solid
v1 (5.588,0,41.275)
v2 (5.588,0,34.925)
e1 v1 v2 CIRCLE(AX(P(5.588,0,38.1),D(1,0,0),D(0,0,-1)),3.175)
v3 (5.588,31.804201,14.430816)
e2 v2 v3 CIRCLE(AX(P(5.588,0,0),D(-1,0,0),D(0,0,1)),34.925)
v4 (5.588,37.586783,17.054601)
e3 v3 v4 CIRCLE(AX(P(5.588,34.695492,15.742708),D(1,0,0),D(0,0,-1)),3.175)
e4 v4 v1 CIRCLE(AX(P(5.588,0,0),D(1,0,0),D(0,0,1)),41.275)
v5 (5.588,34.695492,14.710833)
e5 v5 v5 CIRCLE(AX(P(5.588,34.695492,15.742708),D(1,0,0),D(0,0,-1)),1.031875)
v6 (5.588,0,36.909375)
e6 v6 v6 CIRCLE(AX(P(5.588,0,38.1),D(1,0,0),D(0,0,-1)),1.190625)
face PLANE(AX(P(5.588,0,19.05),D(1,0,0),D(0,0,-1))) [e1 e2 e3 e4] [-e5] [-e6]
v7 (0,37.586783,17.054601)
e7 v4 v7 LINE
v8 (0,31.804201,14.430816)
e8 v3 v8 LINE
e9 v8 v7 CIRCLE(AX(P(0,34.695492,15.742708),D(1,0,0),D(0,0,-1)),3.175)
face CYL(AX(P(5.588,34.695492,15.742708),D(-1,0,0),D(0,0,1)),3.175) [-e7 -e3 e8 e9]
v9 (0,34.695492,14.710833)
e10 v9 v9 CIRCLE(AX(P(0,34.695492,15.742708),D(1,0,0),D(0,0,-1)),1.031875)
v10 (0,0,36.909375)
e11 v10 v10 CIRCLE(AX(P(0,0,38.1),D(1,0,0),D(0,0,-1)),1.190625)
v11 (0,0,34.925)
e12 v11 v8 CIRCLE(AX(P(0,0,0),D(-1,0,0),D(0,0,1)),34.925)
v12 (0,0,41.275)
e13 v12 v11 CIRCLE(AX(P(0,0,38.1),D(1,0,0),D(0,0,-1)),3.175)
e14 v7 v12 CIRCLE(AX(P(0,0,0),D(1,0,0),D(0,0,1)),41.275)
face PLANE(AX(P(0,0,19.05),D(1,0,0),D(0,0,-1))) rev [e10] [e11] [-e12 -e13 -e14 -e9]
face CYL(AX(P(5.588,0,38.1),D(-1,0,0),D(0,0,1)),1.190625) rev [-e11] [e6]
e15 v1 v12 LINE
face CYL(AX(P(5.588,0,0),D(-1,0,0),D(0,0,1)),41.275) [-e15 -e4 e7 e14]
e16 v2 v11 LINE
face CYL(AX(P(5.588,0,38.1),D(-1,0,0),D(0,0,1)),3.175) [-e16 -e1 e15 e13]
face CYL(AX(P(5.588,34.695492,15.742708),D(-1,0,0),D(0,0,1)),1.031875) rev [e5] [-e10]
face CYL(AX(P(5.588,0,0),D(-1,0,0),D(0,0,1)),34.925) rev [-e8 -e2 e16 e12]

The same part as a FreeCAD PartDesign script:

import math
import FreeCAD as App
import Part
import Sketcher

V = App.Vector
Q = App.Units.Quantity

doc = App.newDocument("Part")
body = doc.addObject("PartDesign::Body", "Body")

# Sketch on YZ plane
sketch1 = body.newObject("Sketcher::SketchObject", "Sketch")
sketch1.AttachmentSupport = (doc.getObject("YZ_Plane"), [""])
sketch1.MapMode = "FlatFace"
sketch1.addGeometry([
    Part.ArcOfCircle(Part.Circle(V(0, 0, 0), V(0, 0, 1), 34.9), math.radians(24), math.radians(90)),  # 0
    Part.ArcOfCircle(Part.Circle(V(34.7, 15.7, 0), V(0, 0, 1), 3.2), math.radians(-156), math.radians(24)),  # 1
    Part.ArcOfCircle(Part.Circle(V(0, 0, 0), V(0, 0, 1), 41.3), math.radians(24), math.radians(90)),  # 2
    Part.ArcOfCircle(Part.Circle(V(0, 38.1, 0), V(0, 0, 1), 3.2), math.radians(90), math.radians(270)),  # 3
    Part.Circle(V(0, 38.1, 0), V(0, 0, 1), 1.2),  # 4
    Part.Circle(V(34.7, 15.7, 0), V(0, 0, 1), 1),  # 5
], False)
sketch1.addConstraint([
    Sketcher.Constraint("Tangent", 0, 1, 1, 1),
    Sketcher.Constraint("Tangent", 1, 2, 2, 1),
    Sketcher.Constraint("Tangent", 2, 2, 3, 1),
    Sketcher.Constraint("Tangent", 3, 2, 0, 2),
    Sketcher.Constraint("Coincident", 0, 3, -1, 1),
    Sketcher.Constraint("Coincident", 2, 3, -1, 1),
    Sketcher.Constraint("Coincident", 4, 3, 3, 3),
    Sketcher.Constraint("Coincident", 5, 3, 1, 3),
    Sketcher.Constraint("PointOnObject", 3, 3, -2),
    Sketcher.Constraint("Diameter", 4, Q("0.09375 in")),
    Sketcher.Constraint("Radius", 0, Q("1.375 in")),
    Sketcher.Constraint("Radius", 1, Q("0.125 in")),
    Sketcher.Constraint("Diameter", 5, Q("2.06375 mm")),
    Sketcher.Constraint("DistanceX", -1, 1, 0, 1, Q("31.804201 mm")),
])
pad1 = body.newObject("PartDesign::Pad", "Pad")
pad1.Profile = sketch1
pad1.Length = Q("0.22 in")

doc.recompute()
